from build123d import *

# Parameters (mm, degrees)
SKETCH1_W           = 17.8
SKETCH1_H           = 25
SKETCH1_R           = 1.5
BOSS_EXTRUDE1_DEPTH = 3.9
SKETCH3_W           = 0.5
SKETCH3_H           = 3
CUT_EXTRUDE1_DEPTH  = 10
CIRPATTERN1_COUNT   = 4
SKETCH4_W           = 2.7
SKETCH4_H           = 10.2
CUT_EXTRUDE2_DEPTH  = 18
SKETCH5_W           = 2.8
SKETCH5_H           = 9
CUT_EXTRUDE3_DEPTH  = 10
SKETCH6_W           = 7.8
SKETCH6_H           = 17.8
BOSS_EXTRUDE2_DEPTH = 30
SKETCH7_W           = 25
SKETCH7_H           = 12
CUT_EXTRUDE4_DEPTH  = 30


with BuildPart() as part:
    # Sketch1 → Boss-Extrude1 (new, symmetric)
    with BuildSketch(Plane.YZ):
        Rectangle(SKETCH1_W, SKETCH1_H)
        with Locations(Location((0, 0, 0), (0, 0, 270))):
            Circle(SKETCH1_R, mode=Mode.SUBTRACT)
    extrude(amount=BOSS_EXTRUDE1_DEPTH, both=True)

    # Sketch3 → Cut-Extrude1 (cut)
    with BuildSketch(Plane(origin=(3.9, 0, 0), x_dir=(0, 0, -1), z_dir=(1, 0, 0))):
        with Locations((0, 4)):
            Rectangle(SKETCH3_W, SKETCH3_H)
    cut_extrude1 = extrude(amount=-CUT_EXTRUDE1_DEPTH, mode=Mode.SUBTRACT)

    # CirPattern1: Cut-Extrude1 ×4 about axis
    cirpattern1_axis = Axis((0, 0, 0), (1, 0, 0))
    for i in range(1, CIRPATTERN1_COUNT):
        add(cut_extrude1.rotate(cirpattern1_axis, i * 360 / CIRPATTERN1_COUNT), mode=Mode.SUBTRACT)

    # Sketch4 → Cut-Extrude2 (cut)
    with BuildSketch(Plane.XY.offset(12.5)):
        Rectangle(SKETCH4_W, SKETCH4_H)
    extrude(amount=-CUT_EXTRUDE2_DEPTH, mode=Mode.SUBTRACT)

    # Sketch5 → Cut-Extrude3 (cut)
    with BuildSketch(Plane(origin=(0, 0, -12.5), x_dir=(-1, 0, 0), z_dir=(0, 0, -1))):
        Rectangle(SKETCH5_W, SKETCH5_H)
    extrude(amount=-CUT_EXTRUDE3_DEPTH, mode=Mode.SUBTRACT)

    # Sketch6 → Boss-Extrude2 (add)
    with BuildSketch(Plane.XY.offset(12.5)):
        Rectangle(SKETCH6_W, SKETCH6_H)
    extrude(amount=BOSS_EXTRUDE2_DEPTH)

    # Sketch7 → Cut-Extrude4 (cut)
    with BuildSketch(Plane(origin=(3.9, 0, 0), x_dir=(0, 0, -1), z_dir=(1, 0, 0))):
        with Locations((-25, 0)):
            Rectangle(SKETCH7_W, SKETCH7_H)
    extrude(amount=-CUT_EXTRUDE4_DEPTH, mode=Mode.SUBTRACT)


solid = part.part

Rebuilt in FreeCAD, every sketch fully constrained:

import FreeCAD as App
import Part
import Sketcher

V = App.Vector

doc = App.newDocument("Part")
body = doc.addObject("PartDesign::Body", "Body")

# Sketch on YZ plane
sketch1 = body.newObject("Sketcher::SketchObject", "Sketch")
sketch1.AttachmentSupport = (doc.getObject("YZ_Plane"), [""])
sketch1.MapMode = "FlatFace"
sketch1.addGeometry(Part.LineSegment(V(-8.9, 12.5, 0), V(-8.9, -12.5, 0)), False)
sketch1.addGeometry(Part.LineSegment(V(-8.9, -12.5, 0), V(8.9, -12.5, 0)), False)
sketch1.addGeometry(Part.LineSegment(V(8.9, -12.5, 0), V(8.9, 12.5, 0)), False)
sketch1.addGeometry(Part.LineSegment(V(8.9, 12.5, 0), V(-8.9, 12.5, 0)), False)
sketch1.addGeometry(Part.Circle(V(0, 0, 0), V(0, 0, 1), 1.5), False)
sketch1.addConstraint(Sketcher.Constraint("Coincident", 0, 2, 1, 1))
sketch1.addConstraint(Sketcher.Constraint("Coincident", 1, 2, 2, 1))
sketch1.addConstraint(Sketcher.Constraint("Coincident", 2, 2, 3, 1))
sketch1.addConstraint(Sketcher.Constraint("Coincident", 3, 2, 0, 1))
sketch1.addConstraint(Sketcher.Constraint("Vertical", 0))
sketch1.addConstraint(Sketcher.Constraint("Horizontal", 1))
sketch1.addConstraint(Sketcher.Constraint("Vertical", 2))
sketch1.addConstraint(Sketcher.Constraint("Horizontal", 3))
sketch1.addConstraint(Sketcher.Constraint("Coincident", 4, 3, -1, 1))
sketch1.addConstraint(Sketcher.Constraint("Symmetric", 0, 2, 2, 2, -1, 1))
sketch1.addConstraint(Sketcher.Constraint("Diameter", 4, 3.0))
sketch1.addConstraint(Sketcher.Constraint("DistanceY", 0, 2, 0, 1, 25.0))
sketch1.addConstraint(Sketcher.Constraint("DistanceX", 1, 1, 1, 2, 17.8))
pad1 = body.newObject("PartDesign::Pad", "Pad")
pad1.Profile = sketch1
pad1.Length = 7.8
pad1.Midplane = True

# Sketch on YZ plane
sketch2 = body.newObject("Sketcher::SketchObject", "Sketch001")
sketch2.AttachmentSupport = (doc.getObject("YZ_Plane"), [""])
sketch2.MapMode = "FlatFace"
sketch2.AttachmentOffset = App.Placement(V(0, 0, 3.9), App.Rotation())
sketch2.addGeometry(Part.LineSegment(V(5.5, 0.25, 0), V(2.5, 0.25, 0)), False)
sketch2.addGeometry(Part.LineSegment(V(2.5, 0.25, 0), V(2.5, -0.25, 0)), False)
sketch2.addGeometry(Part.LineSegment(V(2.5, -0.25, 0), V(5.5, -0.25, 0)), False)
sketch2.addGeometry(Part.LineSegment(V(5.5, -0.25, 0), V(5.5, 0.25, 0)), False)
sketch2.addConstraint(Sketcher.Constraint("Coincident", 0, 2, 1, 1))
sketch2.addConstraint(Sketcher.Constraint("Coincident", 1, 2, 2, 1))
sketch2.addConstraint(Sketcher.Constraint("Coincident", 2, 2, 3, 1))
sketch2.addConstraint(Sketcher.Constraint("Coincident", 3, 2, 0, 1))
sketch2.addConstraint(Sketcher.Constraint("Horizontal", 0))
sketch2.addConstraint(Sketcher.Constraint("Vertical", 1))
sketch2.addConstraint(Sketcher.Constraint("Horizontal", 2))
sketch2.addConstraint(Sketcher.Constraint("Vertical", 3))
sketch2.addConstraint(Sketcher.Constraint("DistanceX", 0, 2, 0, 1, 3.0))
sketch2.addConstraint(Sketcher.Constraint("DistanceY", 1, 2, 1, 1, 0.5))
sketch2.addConstraint(Sketcher.Constraint("DistanceX", -1, 1, 0, 2, 2.5))
sketch2.addConstraint(Sketcher.Constraint("DistanceY", -1, 1, 0, 2, 0.25))
pocket1 = body.newObject("PartDesign::Pocket", "Pocket")
pocket1.Profile = sketch2
pocket1.Length = 10
doc.recompute()

polarpattern = body.newObject("PartDesign::PolarPattern", "PolarPattern")
polarpattern.Originals = [pocket1]
polarpattern.Axis = (doc.getObject("X_Axis"), [""])
polarpattern.Angle = 360
polarpattern.Occurrences = 4
body.Tip = polarpattern

# Sketch on XY plane
sketch3 = body.newObject("Sketcher::SketchObject", "Sketch002")
sketch3.AttachmentSupport = (doc.getObject("XY_Plane"), [""])
sketch3.MapMode = "FlatFace"
sketch3.AttachmentOffset = App.Placement(V(0, 0, 12.5), App.Rotation())
sketch3.addGeometry(Part.LineSegment(V(-1.35, 5.1, 0), V(-1.35, -5.1, 0)), False)
sketch3.addGeometry(Part.LineSegment(V(-1.35, -5.1, 0), V(1.35, -5.1, 0)), False)
sketch3.addGeometry(Part.LineSegment(V(1.35, -5.1, 0), V(1.35, 5.1, 0)), False)
sketch3.addGeometry(Part.LineSegment(V(1.35, 5.1, 0), V(-1.35, 5.1, 0)), False)
sketch3.addConstraint(Sketcher.Constraint("Coincident", 0, 2, 1, 1))
sketch3.addConstraint(Sketcher.Constraint("Coincident", 1, 2, 2, 1))
sketch3.addConstraint(Sketcher.Constraint("Coincident", 2, 2, 3, 1))
sketch3.addConstraint(Sketcher.Constraint("Coincident", 3, 2, 0, 1))
sketch3.addConstraint(Sketcher.Constraint("Vertical", 0))
sketch3.addConstraint(Sketcher.Constraint("Horizontal", 1))
sketch3.addConstraint(Sketcher.Constraint("Vertical", 2))
sketch3.addConstraint(Sketcher.Constraint("Horizontal", 3))
sketch3.addConstraint(Sketcher.Constraint("Symmetric", 0, 2, 2, 2, -1, 1))
sketch3.addConstraint(Sketcher.Constraint("DistanceX", 1, 1, 1, 2, 2.7))
sketch3.addConstraint(Sketcher.Constraint("DistanceY", 0, 2, 0, 1, 10.2))
pocket2 = body.newObject("PartDesign::Pocket", "Pocket001")
pocket2.Profile = sketch3
pocket2.Length = 18

# Sketch on XY plane
sketch4 = body.newObject("Sketcher::SketchObject", "Sketch003")
sketch4.AttachmentSupport = (doc.getObject("XY_Plane"), [""])
sketch4.MapMode = "FlatFace"
sketch4.AttachmentOffset = App.Placement(V(0, 0, -12.5), App.Rotation())
sketch4.addGeometry(Part.LineSegment(V(1.4, 4.5, 0), V(1.4, -4.5, 0)), False)
sketch4.addGeometry(Part.LineSegment(V(1.4, -4.5, 0), V(-1.4, -4.5, 0)), False)
sketch4.addGeometry(Part.LineSegment(V(-1.4, -4.5, 0), V(-1.4, 4.5, 0)), False)
sketch4.addGeometry(Part.LineSegment(V(-1.4, 4.5, 0), V(1.4, 4.5, 0)), False)
sketch4.addConstraint(Sketcher.Constraint("Coincident", 0, 2, 1, 1))
sketch4.addConstraint(Sketcher.Constraint("Coincident", 1, 2, 2, 1))
sketch4.addConstraint(Sketcher.Constraint("Coincident", 2, 2, 3, 1))
sketch4.addConstraint(Sketcher.Constraint("Coincident", 3, 2, 0, 1))
sketch4.addConstraint(Sketcher.Constraint("Vertical", 0))
sketch4.addConstraint(Sketcher.Constraint("Horizontal", 1))
sketch4.addConstraint(Sketcher.Constraint("Vertical", 2))
sketch4.addConstraint(Sketcher.Constraint("Horizontal", 3))
sketch4.addConstraint(Sketcher.Constraint("Symmetric", 0, 2, 2, 2, -1, 1))
sketch4.addConstraint(Sketcher.Constraint("DistanceY", 0, 2, 0, 1, 9.0))
sketch4.addConstraint(Sketcher.Constraint("DistanceX", 1, 2, 1, 1, 2.8))
pocket3 = body.newObject("PartDesign::Pocket", "Pocket002")
pocket3.Profile = sketch4
pocket3.Length = 10
pocket3.Reversed = True

# Sketch on XY plane
sketch5 = body.newObject("Sketcher::SketchObject", "Sketch004")
sketch5.AttachmentSupport = (doc.getObject("XY_Plane"), [""])
sketch5.MapMode = "FlatFace"
sketch5.AttachmentOffset = App.Placement(V(0, 0, 12.5), App.Rotation())
sketch5.addGeometry(Part.LineSegment(V(-3.9, 8.9, 0), V(-3.9, -8.9, 0)), False)
sketch5.addGeometry(Part.LineSegment(V(-3.9, -8.9, 0), V(3.9, -8.9, 0)), False)
sketch5.addGeometry(Part.LineSegment(V(3.9, -8.9, 0), V(3.9, 8.9, 0)), False)
sketch5.addGeometry(Part.LineSegment(V(3.9, 8.9, 0), V(-3.9, 8.9, 0)), False)
sketch5.addConstraint(Sketcher.Constraint("Coincident", 0, 2, 1, 1))
sketch5.addConstraint(Sketcher.Constraint("Coincident", 1, 2, 2, 1))
sketch5.addConstraint(Sketcher.Constraint("Coincident", 2, 2, 3, 1))
sketch5.addConstraint(Sketcher.Constraint("Coincident", 3, 2, 0, 1))
sketch5.addConstraint(Sketcher.Constraint("Vertical", 0))
sketch5.addConstraint(Sketcher.Constraint("Horizontal", 1))
sketch5.addConstraint(Sketcher.Constraint("Vertical", 2))
sketch5.addConstraint(Sketcher.Constraint("Horizontal", 3))
sketch5.addConstraint(Sketcher.Constraint("Symmetric", 0, 2, 2, 2, -1, 1))
sketch5.addConstraint(Sketcher.Constraint("DistanceX", 1, 1, 1, 2, 7.8))
sketch5.addConstraint(Sketcher.Constraint("DistanceY", 0, 2, 0, 1, 17.8))
pad2 = body.newObject("PartDesign::Pad", "Pad001")
pad2.Profile = sketch5
pad2.Length = 30

# Sketch on YZ plane
sketch6 = body.newObject("Sketcher::SketchObject", "Sketch005")
sketch6.AttachmentSupport = (doc.getObject("YZ_Plane"), [""])
sketch6.MapMode = "FlatFace"
sketch6.AttachmentOffset = App.Placement(V(0, 0, 3.9), App.Rotation())
sketch6.addGeometry(Part.LineSegment(V(6, 37.5, 0), V(-6, 37.5, 0)), False)
sketch6.addGeometry(Part.LineSegment(V(-6, 37.5, 0), V(-6, 12.5, 0)), False)
sketch6.addGeometry(Part.LineSegment(V(-6, 12.5, 0), V(6, 12.5, 0)), False)
sketch6.addGeometry(Part.LineSegment(V(6, 12.5, 0), V(6, 37.5, 0)), False)
sketch6.addConstraint(Sketcher.Constraint("Coincident", 0, 2, 1, 1))
sketch6.addConstraint(Sketcher.Constraint("Coincident", 1, 2, 2, 1))
sketch6.addConstraint(Sketcher.Constraint("Coincident", 2, 2, 3, 1))
sketch6.addConstraint(Sketcher.Constraint("Coincident", 3, 2, 0, 1))
sketch6.addConstraint(Sketcher.Constraint("Horizontal", 0))
sketch6.addConstraint(Sketcher.Constraint("Vertical", 1))
sketch6.addConstraint(Sketcher.Constraint("Horizontal", 2))
sketch6.addConstraint(Sketcher.Constraint("Vertical", 3))
sketch6.addConstraint(Sketcher.Constraint("DistanceX", 0, 2, 0, 1, 12.0))
sketch6.addConstraint(Sketcher.Constraint("DistanceY", 1, 2, 1, 1, 25.0))
sketch6.addConstraint(Sketcher.Constraint("DistanceX", 0, 2, -1, 1, 6.0))
sketch6.addConstraint(Sketcher.Constraint("DistanceY", -1, 1, 0, 2, 37.5))
pocket4 = body.newObject("PartDesign::Pocket", "Pocket003")
pocket4.Profile = sketch6
pocket4.Length = 30

doc.recompute()
